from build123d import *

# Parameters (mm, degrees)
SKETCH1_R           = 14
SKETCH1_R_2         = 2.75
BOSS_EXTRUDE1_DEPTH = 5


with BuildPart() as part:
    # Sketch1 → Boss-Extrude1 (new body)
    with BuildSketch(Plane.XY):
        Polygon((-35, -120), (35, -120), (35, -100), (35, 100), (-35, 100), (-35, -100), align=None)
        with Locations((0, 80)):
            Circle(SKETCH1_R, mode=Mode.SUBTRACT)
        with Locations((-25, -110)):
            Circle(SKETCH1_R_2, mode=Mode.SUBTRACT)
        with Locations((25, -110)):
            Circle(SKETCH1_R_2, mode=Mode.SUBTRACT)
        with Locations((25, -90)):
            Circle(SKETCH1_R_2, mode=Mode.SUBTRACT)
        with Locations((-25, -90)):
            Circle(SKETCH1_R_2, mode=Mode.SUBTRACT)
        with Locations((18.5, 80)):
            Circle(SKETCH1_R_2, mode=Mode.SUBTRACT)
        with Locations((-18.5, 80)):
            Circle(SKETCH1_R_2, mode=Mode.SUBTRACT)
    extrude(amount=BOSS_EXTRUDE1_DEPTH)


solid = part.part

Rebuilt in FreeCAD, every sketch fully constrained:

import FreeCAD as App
import Part
import Sketcher

V = App.Vector
Q = App.Units.Quantity


def add_polygon(sketch, points):
    """Adds a closed chain of lines whose ends are joined by coincident constraints."""
    first, n = sketch.GeometryCount, len(points)
    for a, b in zip(points, points[1:] + points[:1]):
        sketch.addGeometry(Part.LineSegment(App.Vector(*a, 0), App.Vector(*b, 0)), False)
    for i in range(n):
        sketch.addConstraint(Sketcher.Constraint("Coincident", first + i, 2, first + (i + 1) % n, 1))

doc = App.newDocument("Part")
body = doc.addObject("PartDesign::Body", "Body")

sketch1 = body.newObject("Sketcher::SketchObject", "Sketch")
sketch1.AttachmentSupport = (doc.getObject("XY_Plane"), [""])
sketch1.MapMode = "FlatFace"
add_polygon(sketch1, [(-35, -120), (35, -120), (35, 100), (-35, 100)])
sketch1.addGeometry(Part.Circle(V(-25, -110, 0), V(0, 0, 1), 2.8), False)
sketch1.addGeometry(Part.Circle(V(-25, -90, 0), V(0, 0, 1), 2.8), False)
sketch1.addGeometry(Part.Circle(V(25, -110, 0), V(0, 0, 1), 2.8), False)
sketch1.addGeometry(Part.Circle(V(25, -90, 0), V(0, 0, 1), 2.8), False)
sketch1.addGeometry(Part.Circle(V(-18.5, 80, 0), V(0, 0, 1), 2.8), False)
sketch1.addGeometry(Part.Circle(V(0, 80, 0), V(0, 0, 1), 14), False)
sketch1.addGeometry(Part.Circle(V(18.5, 80, 0), V(0, 0, 1), 2.8), False)
sketch1.addConstraint([
    Sketcher.Constraint("Horizontal", 0),
    Sketcher.Constraint("Vertical", 1),
    Sketcher.Constraint("Horizontal", 2),
    Sketcher.Constraint("Vertical", 3),
    Sketcher.Constraint("Equal", 4, 5),
    Sketcher.Constraint("Equal", 5, 6),
    Sketcher.Constraint("Equal", 6, 7),
    Sketcher.Constraint("Equal", 7, 8),
    Sketcher.Constraint("Equal", 8, 10),
    Sketcher.Constraint("Symmetric", 4, 3, 6, 3, -2),
    Sketcher.Constraint("Symmetric", 5, 3, 7, 3, -2),
    Sketcher.Constraint("Symmetric", 8, 3, 10, 3, -2),
    Sketcher.Constraint("PointOnObject", 9, 3, -2),
    Sketcher.Constraint("Horizontal", 8, 3, 9, 3),
    Sketcher.Constraint("Vertical", 4, 3, 5, 3),
    Sketcher.Constraint("Diameter", 9, Q("28 mm")),
    Sketcher.Constraint("Diameter", 4, Q("5.5 mm")),
    Sketcher.Constraint("DistanceX", 0, 1, 0, 2, Q("70 mm")),
    Sketcher.Constraint("DistanceY", 1, 1, 1, 2, Q("220 mm")),
    Sketcher.Constraint("DistanceX", 4, 3, -1, 1, Q("25 mm")),
    Sketcher.Constraint("DistanceY", 4, 3, -1, 1, Q("110 mm")),
    Sketcher.Constraint("DistanceY", 5, 3, -1, 1, Q("90 mm")),
    Sketcher.Constraint("DistanceY", -1, 1, 8, 3, Q("80 mm")),
    Sketcher.Constraint("DistanceX", -1, 1, 0, 2, Q("35 mm")),
    Sketcher.Constraint("DistanceY", 0, 2, -1, 1, Q("120 mm")),
    Sketcher.Constraint("DistanceX", 8, 3, 10, 3, Q("37 mm")),
])
pad1 = body.newObject("PartDesign::Pad", "Pad")
pad1.Profile = sketch1
pad1.Length = 5

doc.recompute()
